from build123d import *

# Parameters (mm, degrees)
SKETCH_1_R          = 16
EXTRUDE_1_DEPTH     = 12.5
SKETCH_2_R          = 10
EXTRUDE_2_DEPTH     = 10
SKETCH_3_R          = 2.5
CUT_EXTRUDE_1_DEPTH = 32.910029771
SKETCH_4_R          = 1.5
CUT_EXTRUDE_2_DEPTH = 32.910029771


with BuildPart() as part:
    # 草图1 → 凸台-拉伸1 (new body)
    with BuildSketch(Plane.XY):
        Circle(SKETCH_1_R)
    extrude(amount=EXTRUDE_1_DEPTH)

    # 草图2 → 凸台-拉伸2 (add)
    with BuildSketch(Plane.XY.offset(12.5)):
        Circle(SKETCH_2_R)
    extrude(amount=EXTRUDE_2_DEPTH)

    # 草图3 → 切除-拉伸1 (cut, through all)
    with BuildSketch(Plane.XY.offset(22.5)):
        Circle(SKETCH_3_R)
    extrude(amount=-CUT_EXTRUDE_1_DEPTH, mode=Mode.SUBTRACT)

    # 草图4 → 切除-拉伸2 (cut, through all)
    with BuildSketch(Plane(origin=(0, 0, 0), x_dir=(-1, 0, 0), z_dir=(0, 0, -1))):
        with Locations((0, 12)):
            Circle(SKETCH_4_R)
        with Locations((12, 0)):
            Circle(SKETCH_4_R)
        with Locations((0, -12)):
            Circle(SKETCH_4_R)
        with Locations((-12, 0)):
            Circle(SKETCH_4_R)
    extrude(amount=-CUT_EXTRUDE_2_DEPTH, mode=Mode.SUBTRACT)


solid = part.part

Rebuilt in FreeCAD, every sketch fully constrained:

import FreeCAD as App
import Part
import Sketcher

V = App.Vector
Q = App.Units.Quantity

doc = App.newDocument("Part")
params = doc.addObject("Spreadsheet::Sheet", "Params")
for row, (alias, value) in enumerate([
    ("sketch1_diameter", "32 mm"),
    ("pad1_length", "12.5 mm"),
    ("sketch2_diameter", "20 mm"),
    ("pad2_length", "10 mm"),
    ("sketch3_diameter", "5 mm"),
    ("sketch4_diameter", "3 mm"),
], start=1):
    params.set(f"A{row}", alias)
    params.set(f"B{row}", "=" + value)
    params.setAlias(f"B{row}", alias)

body = doc.addObject("PartDesign::Body", "Body")

sketch1 = body.newObject("Sketcher::SketchObject", "Sketch")
sketch1.AttachmentSupport = (doc.getObject("XY_Plane"), [""])
sketch1.MapMode = "FlatFace"
sketch1.addGeometry(Part.Circle(V(0, 0, 0), V(0, 0, 1), 16), False)
sketch1.addConstraint(Sketcher.Constraint("Coincident", 0, 3, -1, 1))
sketch1.addConstraint(Sketcher.Constraint("Diameter", 0, Q("32 mm")))
sketch1.setExpression("Constraints[1]", "Params.sketch1_diameter")
pad1 = body.newObject("PartDesign::Pad", "Pad")
pad1.Profile = sketch1
pad1.setExpression("Length", "Params.pad1_length")

sketch2 = body.newObject("Sketcher::SketchObject", "Sketch001")
sketch2.AttachmentSupport = (doc.getObject("XY_Plane"), [""])
sketch2.MapMode = "FlatFace"
sketch2.AttachmentOffset = App.Placement(V(0, 0, 12.5), App.Rotation())
sketch2.addGeometry(Part.Circle(V(0, 0, 0), V(0, 0, 1), 10), False)
sketch2.addConstraint(Sketcher.Constraint("Coincident", 0, 3, -1, 1))
sketch2.addConstraint(Sketcher.Constraint("Diameter", 0, Q("20 mm")))
sketch2.setExpression("Constraints[1]", "Params.sketch2_diameter")
pad2 = body.newObject("PartDesign::Pad", "Pad001")
pad2.Profile = sketch2
pad2.setExpression("Length", "Params.pad2_length")

sketch3 = body.newObject("Sketcher::SketchObject", "Sketch002")
sketch3.AttachmentSupport = (doc.getObject("XY_Plane"), [""])
sketch3.MapMode = "FlatFace"
sketch3.AttachmentOffset = App.Placement(V(0, 0, 22.5), App.Rotation())
sketch3.addGeometry(Part.Circle(V(0, 0, 0), V(0, 0, 1), 2.5), False)
sketch3.addConstraint(Sketcher.Constraint("Coincident", 0, 3, -1, 1))
sketch3.addConstraint(Sketcher.Constraint("Diameter", 0, Q("5 mm")))
sketch3.setExpression("Constraints[1]", "Params.sketch3_diameter")
pocket1 = body.newObject("PartDesign::Pocket", "Pocket")
pocket1.Profile = sketch3
pocket1.Type = "ThroughAll"

sketch4 = body.newObject("Sketcher::SketchObject", "Sketch003")
sketch4.AttachmentSupport = (doc.getObject("XY_Plane"), [""])
sketch4.MapMode = "FlatFace"
sketch4.addGeometry(Part.Circle(V(0, 12, 0), V(0, 0, 1), 1.5), False)
sketch4.addGeometry(Part.Circle(V(-12, 0, 0), V(0, 0, 1), 1.5), False)
sketch4.addGeometry(Part.Circle(V(0, -12, 0), V(0, 0, 1), 1.5), False)
sketch4.addGeometry(Part.Circle(V(12, 0, 0), V(0, 0, 1), 1.5), False)
sketch4.addConstraint(Sketcher.Constraint("Equal", 0, 1))
sketch4.addConstraint(Sketcher.Constraint("Equal", 1, 2))
sketch4.addConstraint(Sketcher.Constraint("Equal", 2, 3))
sketch4.addConstraint(Sketcher.Constraint("Symmetric", 0, 3, 2, 3, -1, 1))
sketch4.addConstraint(Sketcher.Constraint("Symmetric", 1, 3, 3, 3, -1, 1))
sketch4.addConstraint(Sketcher.Constraint("PointOnObject", 0, 3, -2))
sketch4.addConstraint(Sketcher.Constraint("PointOnObject", 1, 3, -1))
sketch4.addConstraint(Sketcher.Constraint("Diameter", 0, Q("3 mm")))
sketch4.addConstraint(Sketcher.Constraint("DistanceY", -1, 1, 0, 3, Q("12 mm")))
sketch4.addConstraint(Sketcher.Constraint("DistanceX", 1, 3, -1, 1, Q("12 mm")))
sketch4.setExpression("Constraints[7]", "Params.sketch4_diameter")
pocket2 = body.newObject("PartDesign::Pocket", "Pocket001")
pocket2.Profile = sketch4
pocket2.Type = "ThroughAll"
pocket2.Reversed = True

doc.recompute()
